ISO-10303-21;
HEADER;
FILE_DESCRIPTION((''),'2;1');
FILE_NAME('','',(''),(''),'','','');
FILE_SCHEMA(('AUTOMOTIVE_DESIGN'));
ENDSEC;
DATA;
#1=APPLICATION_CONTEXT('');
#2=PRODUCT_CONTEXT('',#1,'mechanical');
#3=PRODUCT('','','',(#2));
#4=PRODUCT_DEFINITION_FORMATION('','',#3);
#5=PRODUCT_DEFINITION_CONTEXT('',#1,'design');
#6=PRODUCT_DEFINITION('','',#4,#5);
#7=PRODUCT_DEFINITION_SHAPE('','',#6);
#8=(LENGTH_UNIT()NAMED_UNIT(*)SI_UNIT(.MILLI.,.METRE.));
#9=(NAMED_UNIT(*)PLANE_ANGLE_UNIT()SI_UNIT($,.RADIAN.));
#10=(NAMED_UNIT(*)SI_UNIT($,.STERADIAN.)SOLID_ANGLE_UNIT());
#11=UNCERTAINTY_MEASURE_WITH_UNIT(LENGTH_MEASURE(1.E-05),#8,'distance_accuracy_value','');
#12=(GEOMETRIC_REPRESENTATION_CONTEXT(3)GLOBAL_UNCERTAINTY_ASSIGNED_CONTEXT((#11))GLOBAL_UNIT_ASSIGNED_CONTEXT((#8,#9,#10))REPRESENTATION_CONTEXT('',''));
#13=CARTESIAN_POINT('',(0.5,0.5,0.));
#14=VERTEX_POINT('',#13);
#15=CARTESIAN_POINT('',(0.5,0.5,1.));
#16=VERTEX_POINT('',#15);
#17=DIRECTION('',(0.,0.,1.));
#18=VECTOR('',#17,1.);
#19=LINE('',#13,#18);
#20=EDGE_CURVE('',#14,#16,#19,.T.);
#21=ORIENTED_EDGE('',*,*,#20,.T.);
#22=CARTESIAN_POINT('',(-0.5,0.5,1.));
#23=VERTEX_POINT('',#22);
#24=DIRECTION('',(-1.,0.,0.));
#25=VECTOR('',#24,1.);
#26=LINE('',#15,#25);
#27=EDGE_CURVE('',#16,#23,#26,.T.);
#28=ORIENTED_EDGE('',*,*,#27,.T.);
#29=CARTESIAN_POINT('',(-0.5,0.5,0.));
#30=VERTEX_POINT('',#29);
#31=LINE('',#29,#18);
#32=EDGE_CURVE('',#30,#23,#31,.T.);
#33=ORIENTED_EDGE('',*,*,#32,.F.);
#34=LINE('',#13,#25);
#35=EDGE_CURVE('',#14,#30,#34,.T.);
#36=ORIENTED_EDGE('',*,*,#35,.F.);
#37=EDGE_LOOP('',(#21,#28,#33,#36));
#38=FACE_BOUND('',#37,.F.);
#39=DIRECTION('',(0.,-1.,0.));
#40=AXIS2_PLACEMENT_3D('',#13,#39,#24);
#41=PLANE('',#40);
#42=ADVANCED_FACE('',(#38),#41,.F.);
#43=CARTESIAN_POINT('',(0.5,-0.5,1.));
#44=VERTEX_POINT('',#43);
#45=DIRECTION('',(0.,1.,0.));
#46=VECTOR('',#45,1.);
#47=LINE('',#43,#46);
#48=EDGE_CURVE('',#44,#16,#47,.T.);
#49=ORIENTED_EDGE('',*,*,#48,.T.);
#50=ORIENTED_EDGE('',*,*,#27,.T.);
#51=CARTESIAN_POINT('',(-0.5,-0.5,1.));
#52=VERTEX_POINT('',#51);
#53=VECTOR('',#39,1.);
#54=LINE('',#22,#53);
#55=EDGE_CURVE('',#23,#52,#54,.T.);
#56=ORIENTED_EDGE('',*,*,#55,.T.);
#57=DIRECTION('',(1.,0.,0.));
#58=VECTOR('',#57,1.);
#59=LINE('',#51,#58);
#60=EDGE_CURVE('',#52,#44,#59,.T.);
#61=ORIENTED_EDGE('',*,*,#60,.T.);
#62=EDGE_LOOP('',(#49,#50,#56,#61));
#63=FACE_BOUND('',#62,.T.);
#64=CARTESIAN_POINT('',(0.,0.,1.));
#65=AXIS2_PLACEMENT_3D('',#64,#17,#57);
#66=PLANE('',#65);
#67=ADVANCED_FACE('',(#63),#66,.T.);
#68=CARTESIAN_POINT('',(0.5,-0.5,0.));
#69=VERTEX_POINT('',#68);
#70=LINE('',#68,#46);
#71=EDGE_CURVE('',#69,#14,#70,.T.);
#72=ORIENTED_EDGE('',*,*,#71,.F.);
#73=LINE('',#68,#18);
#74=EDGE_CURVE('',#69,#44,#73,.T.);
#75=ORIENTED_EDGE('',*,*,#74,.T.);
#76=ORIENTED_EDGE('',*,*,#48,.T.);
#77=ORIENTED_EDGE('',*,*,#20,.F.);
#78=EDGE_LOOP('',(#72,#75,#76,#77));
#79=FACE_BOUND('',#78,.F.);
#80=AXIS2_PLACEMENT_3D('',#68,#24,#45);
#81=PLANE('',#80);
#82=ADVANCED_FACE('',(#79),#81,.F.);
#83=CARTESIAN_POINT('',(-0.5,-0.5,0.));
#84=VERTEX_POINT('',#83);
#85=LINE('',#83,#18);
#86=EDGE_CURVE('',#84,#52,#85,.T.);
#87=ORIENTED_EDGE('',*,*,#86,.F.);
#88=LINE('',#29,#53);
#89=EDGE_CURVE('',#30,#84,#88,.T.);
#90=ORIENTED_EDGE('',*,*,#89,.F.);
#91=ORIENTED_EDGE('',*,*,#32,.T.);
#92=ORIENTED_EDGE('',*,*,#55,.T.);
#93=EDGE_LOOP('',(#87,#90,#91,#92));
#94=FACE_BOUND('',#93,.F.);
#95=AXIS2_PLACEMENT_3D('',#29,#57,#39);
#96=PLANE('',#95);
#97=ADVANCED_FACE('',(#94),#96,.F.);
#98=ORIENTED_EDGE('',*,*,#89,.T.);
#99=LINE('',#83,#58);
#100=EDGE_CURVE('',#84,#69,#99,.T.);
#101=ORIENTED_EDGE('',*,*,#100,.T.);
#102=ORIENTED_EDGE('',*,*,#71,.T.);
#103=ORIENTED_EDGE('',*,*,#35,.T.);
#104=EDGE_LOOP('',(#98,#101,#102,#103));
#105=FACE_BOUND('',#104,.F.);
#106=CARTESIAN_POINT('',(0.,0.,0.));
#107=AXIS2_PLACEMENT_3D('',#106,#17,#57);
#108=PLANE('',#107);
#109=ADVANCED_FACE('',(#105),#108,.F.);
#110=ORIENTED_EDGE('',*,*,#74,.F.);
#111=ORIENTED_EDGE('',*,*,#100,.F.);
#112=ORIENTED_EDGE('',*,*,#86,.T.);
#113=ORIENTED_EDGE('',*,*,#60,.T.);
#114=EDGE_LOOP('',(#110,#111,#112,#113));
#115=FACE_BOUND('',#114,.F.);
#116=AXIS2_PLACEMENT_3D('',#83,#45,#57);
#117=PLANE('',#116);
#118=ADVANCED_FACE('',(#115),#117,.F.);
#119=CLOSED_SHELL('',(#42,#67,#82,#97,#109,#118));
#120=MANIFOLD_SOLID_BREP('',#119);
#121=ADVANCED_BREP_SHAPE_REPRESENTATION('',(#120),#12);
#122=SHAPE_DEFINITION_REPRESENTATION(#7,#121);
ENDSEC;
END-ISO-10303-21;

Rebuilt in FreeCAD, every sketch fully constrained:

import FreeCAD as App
import Part
import Sketcher

V = App.Vector
Q = App.Units.Quantity

doc = App.newDocument("Part")
params = doc.addObject("Spreadsheet::Sheet", "Params")
for row, (alias, value) in enumerate([
    ("sketch1_width", "1 mm"),
    ("pad1_length", "1 mm"),
], start=1):
    params.set(f"A{row}", alias)
    params.set(f"B{row}", "=" + value)
    params.setAlias(f"B{row}", alias)

body = doc.addObject("PartDesign::Body", "Body")

sketch1 = doc.addObject("Sketcher::SketchObject", "Sketch")
body.addObject(sketch1)
sketch1.AttachmentSupport = (doc.XY_Plane, [""])
sketch1.MapMode = "FlatFace"
sketch1.addGeometry(Part.LineSegment(V(-0.5, 0.5, 0), V(-0.5, -0.5, 0)), False)
sketch1.addGeometry(Part.LineSegment(V(-0.5, -0.5, 0), V(0.5, -0.5, 0)), False)
sketch1.addGeometry(Part.LineSegment(V(0.5, -0.5, 0), V(0.5, 0.5, 0)), False)
sketch1.addGeometry(Part.LineSegment(V(0.5, 0.5, 0), V(-0.5, 0.5, 0)), False)
sketch1.addConstraint(Sketcher.Constraint("Coincident", 0, 2, 1, 1))
sketch1.addConstraint(Sketcher.Constraint("Coincident", 1, 2, 2, 1))
sketch1.addConstraint(Sketcher.Constraint("Coincident", 2, 2, 3, 1))
sketch1.addConstraint(Sketcher.Constraint("Coincident", 3, 2, 0, 1))
sketch1.addConstraint(Sketcher.Constraint("Vertical", 0))
sketch1.addConstraint(Sketcher.Constraint("Horizontal", 1))
sketch1.addConstraint(Sketcher.Constraint("Vertical", 2))
sketch1.addConstraint(Sketcher.Constraint("Horizontal", 3))
sketch1.addConstraint(Sketcher.Constraint("Symmetric", 0, 2, 2, 2, -1, 1))
sketch1.addConstraint(Sketcher.Constraint("Equal", 3, 0))
sketch1.addConstraint(Sketcher.Constraint("DistanceX", 1, 1, 1, 2, Q("1 mm")))
sketch1.setExpression("Constraints[10]", "Params.sketch1_width")
pad1 = doc.addObject("PartDesign::Pad", "Pad")
body.addObject(pad1)
pad1.Profile = sketch1
pad1.setExpression("Length", "Params.pad1_length")

doc.recompute()
